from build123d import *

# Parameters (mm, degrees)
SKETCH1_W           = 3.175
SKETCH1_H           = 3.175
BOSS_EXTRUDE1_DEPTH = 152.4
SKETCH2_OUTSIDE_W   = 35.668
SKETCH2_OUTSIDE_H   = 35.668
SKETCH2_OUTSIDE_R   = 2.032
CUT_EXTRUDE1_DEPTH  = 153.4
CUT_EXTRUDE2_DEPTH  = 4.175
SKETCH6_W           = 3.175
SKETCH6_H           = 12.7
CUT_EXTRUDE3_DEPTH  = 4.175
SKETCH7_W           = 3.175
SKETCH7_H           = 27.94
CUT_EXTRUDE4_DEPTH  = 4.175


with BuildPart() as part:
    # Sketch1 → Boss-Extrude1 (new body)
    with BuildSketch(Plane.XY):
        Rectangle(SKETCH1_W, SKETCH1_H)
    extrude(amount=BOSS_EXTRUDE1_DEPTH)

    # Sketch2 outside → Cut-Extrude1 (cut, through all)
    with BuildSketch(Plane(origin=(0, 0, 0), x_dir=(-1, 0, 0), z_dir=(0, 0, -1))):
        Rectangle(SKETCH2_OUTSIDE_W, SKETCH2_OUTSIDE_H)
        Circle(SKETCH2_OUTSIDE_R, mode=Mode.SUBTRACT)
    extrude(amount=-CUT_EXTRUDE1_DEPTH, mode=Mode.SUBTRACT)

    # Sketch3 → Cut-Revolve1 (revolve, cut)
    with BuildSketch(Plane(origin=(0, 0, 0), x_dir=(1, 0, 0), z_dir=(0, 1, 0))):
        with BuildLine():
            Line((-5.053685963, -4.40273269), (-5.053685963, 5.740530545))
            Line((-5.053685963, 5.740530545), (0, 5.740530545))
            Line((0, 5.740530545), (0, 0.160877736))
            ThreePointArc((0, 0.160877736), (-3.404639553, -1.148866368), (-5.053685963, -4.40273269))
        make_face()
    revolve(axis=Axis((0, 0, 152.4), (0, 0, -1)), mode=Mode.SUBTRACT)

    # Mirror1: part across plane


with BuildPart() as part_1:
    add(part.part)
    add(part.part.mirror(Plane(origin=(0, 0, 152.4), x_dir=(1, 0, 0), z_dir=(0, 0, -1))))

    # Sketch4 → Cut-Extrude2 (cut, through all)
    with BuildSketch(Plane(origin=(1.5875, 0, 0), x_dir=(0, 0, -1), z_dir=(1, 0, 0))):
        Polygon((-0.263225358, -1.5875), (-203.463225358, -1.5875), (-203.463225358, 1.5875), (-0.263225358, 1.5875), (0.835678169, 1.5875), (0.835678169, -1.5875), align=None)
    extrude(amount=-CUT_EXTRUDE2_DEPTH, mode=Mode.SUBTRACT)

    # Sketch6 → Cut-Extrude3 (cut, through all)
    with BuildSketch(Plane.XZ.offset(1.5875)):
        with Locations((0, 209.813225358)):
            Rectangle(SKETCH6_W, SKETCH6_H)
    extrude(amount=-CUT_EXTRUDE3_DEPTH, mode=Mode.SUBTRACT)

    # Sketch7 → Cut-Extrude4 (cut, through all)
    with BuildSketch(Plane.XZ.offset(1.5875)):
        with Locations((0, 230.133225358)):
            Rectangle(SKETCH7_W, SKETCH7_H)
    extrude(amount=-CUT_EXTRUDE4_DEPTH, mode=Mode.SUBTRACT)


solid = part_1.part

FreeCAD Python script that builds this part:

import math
import FreeCAD as App
import Part
import Sketcher
from FreeCAD import Vector
Q = App.Units.Quantity

doc = App.newDocument("Part")
body = doc.addObject("PartDesign::Body", "Body")

sketch1 = body.newObject("Sketcher::SketchObject", "Sketch")
sketch1.AttachmentSupport = (doc.getObject("XY_Plane"), [""])
sketch1.MapMode = "FlatFace"
sketch1.addGeometry([
    Part.LineSegment(Vector(-1.6, 1.6, 0), Vector(-1.6, -1.6, 0)),
    Part.LineSegment(Vector(-1.6, -1.6, 0), Vector(1.6, -1.6, 0)),
    Part.LineSegment(Vector(1.6, -1.6, 0), Vector(1.6, 1.6, 0)),
    Part.LineSegment(Vector(1.6, 1.6, 0), Vector(-1.6, 1.6, 0)),
], False)
sketch1.addConstraint([
    Sketcher.Constraint("Coincident", 0, 2, 1, 1),
    Sketcher.Constraint("Coincident", 1, 2, 2, 1),
    Sketcher.Constraint("Coincident", 2, 2, 3, 1),
    Sketcher.Constraint("Coincident", 3, 2, 0, 1),
    Sketcher.Constraint("Vertical", 0),
    Sketcher.Constraint("Horizontal", 1),
    Sketcher.Constraint("Vertical", 2),
    Sketcher.Constraint("Horizontal", 3),
    Sketcher.Constraint("Symmetric", 0, 2, 2, 2, -1, 1),
    Sketcher.Constraint("Equal", 3, 0),
    Sketcher.Constraint("DistanceX", 1, 1, 1, 2, Q("0.125 in")),
])
pad1 = body.newObject("PartDesign::Pad", "Pad")
pad1.Profile = sketch1
pad1.Length = Q("6 in")

sketch2 = body.newObject("Sketcher::SketchObject", "Sketch001")
sketch2.AttachmentSupport = (doc.getObject("XY_Plane"), [""])
sketch2.MapMode = "FlatFace"
sketch2.addGeometry([
    Part.LineSegment(Vector(17.8, 17.8, 0), Vector(17.8, -17.8, 0)),
    Part.LineSegment(Vector(17.8, -17.8, 0), Vector(-17.8, -17.8, 0)),
    Part.LineSegment(Vector(-17.8, -17.8, 0), Vector(-17.8, 17.8, 0)),
    Part.LineSegment(Vector(-17.8, 17.8, 0), Vector(17.8, 17.8, 0)),
    Part.Circle(Vector(0, 0, 0), Vector(0, 0, 1), 2),
], False)
sketch2.addConstraint([
    Sketcher.Constraint("Coincident", 0, 2, 1, 1),
    Sketcher.Constraint("Coincident", 1, 2, 2, 1),
    Sketcher.Constraint("Coincident", 2, 2, 3, 1),
    Sketcher.Constraint("Coincident", 3, 2, 0, 1),
    Sketcher.Constraint("Vertical", 0),
    Sketcher.Constraint("Horizontal", 1),
    Sketcher.Constraint("Vertical", 2),
    Sketcher.Constraint("Horizontal", 3),
    Sketcher.Constraint("Coincident", 4, 3, -1, 1),
    Sketcher.Constraint("Symmetric", 0, 2, 2, 2, -1, 1),
    Sketcher.Constraint("Equal", 3, 0),
    Sketcher.Constraint("Diameter", 4, Q("0.16 in")),
    Sketcher.Constraint("DistanceX", 1, 2, 1, 1, 35.668),
])
pocket1 = body.newObject("PartDesign::Pocket", "Pocket")
pocket1.Profile = sketch2
pocket1.Type = "ThroughAll"
pocket1.Reversed = True

sketch3 = body.newObject("Sketcher::SketchObject", "Sketch002")
sketch3.AttachmentSupport = (doc.getObject("XZ_Plane"), [""])
sketch3.MapMode = "FlatFace"
sketch3.addGeometry([
    Part.LineSegment(Vector(-5, -6, 0), Vector(-5, 4, 0)),
    Part.ArcOfCircle(Part.Circle(Vector(0, 5, 0), Vector(0, 0, 1), 5), math.radians(-174), math.radians(-90)),
    Part.LineSegment(Vector(0, 0, 0), Vector(0, -6, 0)),
    Part.LineSegment(Vector(0, -6, 0), Vector(-5, -6, 0)),
], False)
sketch3.addConstraint([
    Sketcher.Constraint("Coincident", 0, 2, 1, 1),
    Sketcher.Constraint("Coincident", 1, 2, 2, 1),
    Sketcher.Constraint("Coincident", 2, 2, 3, 1),
    Sketcher.Constraint("Coincident", 3, 2, 0, 1),
    Sketcher.Constraint("Vertical", 0),
    Sketcher.Constraint("Vertical", 2),
    Sketcher.Constraint("Horizontal", 3),
    Sketcher.Constraint("PointOnObject", 1, 3, -2),
    Sketcher.Constraint("PointOnObject", 1, 2, -2),
    Sketcher.Constraint("Radius", 1, Q("0.2 in")),
    Sketcher.Constraint("DistanceX", 3, 2, 3, 1, 5.053686),
    Sketcher.Constraint("DistanceY", 0, 1, 0, 2, 10.143263),
    Sketcher.Constraint("DistanceY", 2, 2, -1, 1, 5.740531),
])
groove = body.newObject("PartDesign::Groove", "Groove")
groove.Profile = sketch3
groove.ReferenceAxis = (sketch3, ["V_Axis"])
groove.Angle = 360
body2 = doc.addObject("PartDesign::Body", "Body001")
doc.recompute()

body2.BaseFeature = body
doc.recompute()

mirroring = doc.addObject("Part::Mirroring", "Mirroring")
mirroring.Source = body
mirroring.Base = Vector(0, 0, 152.4)
mirroring.Normal = Vector(0, 0, -1)
body3 = doc.addObject("PartDesign::Body", "Body002")
body3.BaseFeature = mirroring
boolean = body2.newObject("PartDesign::Boolean", "Boolean")
boolean.Type = "Fuse"
boolean.addObjects([body3])
doc.recompute()

sketch4 = body2.newObject("Sketcher::SketchObject", "Sketch003")
sketch4.AttachmentSupport = (doc.getObject("YZ_Plane001"), [""])
sketch4.MapMode = "FlatFace"
sketch4.AttachmentOffset = App.Placement(Vector(0, 0, 0.0625 * 25.4), App.Rotation())
sketch4.addGeometry([
    Part.LineSegment(Vector(-1.6, 203.5, 0), Vector(-1.6, -0.8, 0)),
    Part.LineSegment(Vector(-1.6, -0.8, 0), Vector(1.6, -0.8, 0)),
    Part.LineSegment(Vector(1.6, -0.8, 0), Vector(1.6, 203.5, 0)),
    Part.LineSegment(Vector(1.6, 203.5, 0), Vector(-1.6, 203.5, 0)),
], False)
sketch4.addConstraint([
    Sketcher.Constraint("Coincident", 0, 2, 1, 1),
    Sketcher.Constraint("Coincident", 1, 2, 2, 1),
    Sketcher.Constraint("Coincident", 2, 2, 3, 1),
    Sketcher.Constraint("Coincident", 3, 2, 0, 1),
    Sketcher.Constraint("Vertical", 0),
    Sketcher.Constraint("Horizontal", 1),
    Sketcher.Constraint("Vertical", 2),
    Sketcher.Constraint("Horizontal", 3),
    Sketcher.Constraint("DistanceX", 1, 1, 1, 2, Q("0.125 in")),
    Sketcher.Constraint("DistanceX", 0, 2, -1, 1, Q("0.0625 in")),
    Sketcher.Constraint("DistanceY", 0, 2, 0, 1, 204.298904),
    Sketcher.Constraint("DistanceY", 0, 2, -1, 1, 0.835678),
])
pocket2 = body2.newObject("PartDesign::Pocket", "Pocket001")
pocket2.Profile = sketch4
pocket2.Type = "ThroughAll"

sketch5 = body2.newObject("Sketcher::SketchObject", "Sketch004")
sketch5.AttachmentSupport = (doc.getObject("XZ_Plane001"), [""])
sketch5.MapMode = "FlatFace"
sketch5.AttachmentOffset = App.Placement(Vector(0, 0, 0.0625 * 25.4), App.Rotation())
sketch5.addGeometry([
    Part.LineSegment(Vector(-1.6, 216.2, 0), Vector(-1.6, 203.5, 0)),
    Part.LineSegment(Vector(-1.6, 203.5, 0), Vector(1.6, 203.5, 0)),
    Part.LineSegment(Vector(1.6, 203.5, 0), Vector(1.6, 216.2, 0)),
    Part.LineSegment(Vector(1.6, 216.2, 0), Vector(-1.6, 216.2, 0)),
], False)
sketch5.addConstraint([
    Sketcher.Constraint("Coincident", 0, 2, 1, 1),
    Sketcher.Constraint("Coincident", 1, 2, 2, 1),
    Sketcher.Constraint("Coincident", 2, 2, 3, 1),
    Sketcher.Constraint("Coincident", 3, 2, 0, 1),
    Sketcher.Constraint("Vertical", 0),
    Sketcher.Constraint("Horizontal", 1),
    Sketcher.Constraint("Vertical", 2),
    Sketcher.Constraint("Horizontal", 3),
    Sketcher.Constraint("DistanceY", 0, 2, 0, 1, Q("0.5 in")),
    Sketcher.Constraint("DistanceX", 1, 1, 1, 2, Q("0.125 in")),
    Sketcher.Constraint("DistanceX", 0, 2, -1, 1, Q("0.0625 in")),
    Sketcher.Constraint("DistanceY", -1, 1, 0, 2, 203.463225),
])
pocket3 = body2.newObject("PartDesign::Pocket", "Pocket002")
pocket3.Profile = sketch5
pocket3.Type = "ThroughAll"

sketch6 = body2.newObject("Sketcher::SketchObject", "Sketch005")
sketch6.AttachmentSupport = (doc.getObject("XZ_Plane001"), [""])
sketch6.MapMode = "FlatFace"
sketch6.AttachmentOffset = App.Placement(Vector(0, 0, 0.0625 * 25.4), App.Rotation())
sketch6.addGeometry([
    Part.LineSegment(Vector(-1.6, 244.1, 0), Vector(-1.6, 216.2, 0)),
    Part.LineSegment(Vector(-1.6, 216.2, 0), Vector(1.6, 216.2, 0)),
    Part.LineSegment(Vector(1.6, 216.2, 0), Vector(1.6, 244.1, 0)),
    Part.LineSegment(Vector(1.6, 244.1, 0), Vector(-1.6, 244.1, 0)),
], False)
sketch6.addConstraint([
    Sketcher.Constraint("Coincident", 0, 2, 1, 1),
    Sketcher.Constraint("Coincident", 1, 2, 2, 1),
    Sketcher.Constraint("Coincident", 2, 2, 3, 1),
    Sketcher.Constraint("Coincident", 3, 2, 0, 1),
    Sketcher.Constraint("Vertical", 0),
    Sketcher.Constraint("Horizontal", 1),
    Sketcher.Constraint("Vertical", 2),
    Sketcher.Constraint("Horizontal", 3),
    Sketcher.Constraint("DistanceY", 0, 2, 0, 1, Q("1.1 in")),
    Sketcher.Constraint("DistanceX", 1, 1, 1, 2, Q("0.125 in")),
    Sketcher.Constraint("DistanceX", 0, 2, -1, 1, Q("0.0625 in")),
    Sketcher.Constraint("DistanceY", -1, 1, 0, 2, 216.163225),
])
pocket4 = body2.newObject("PartDesign::Pocket", "Pocket003")
pocket4.Profile = sketch6
pocket4.Type = "ThroughAll"
mirroring.Visibility = False

doc.recompute()
